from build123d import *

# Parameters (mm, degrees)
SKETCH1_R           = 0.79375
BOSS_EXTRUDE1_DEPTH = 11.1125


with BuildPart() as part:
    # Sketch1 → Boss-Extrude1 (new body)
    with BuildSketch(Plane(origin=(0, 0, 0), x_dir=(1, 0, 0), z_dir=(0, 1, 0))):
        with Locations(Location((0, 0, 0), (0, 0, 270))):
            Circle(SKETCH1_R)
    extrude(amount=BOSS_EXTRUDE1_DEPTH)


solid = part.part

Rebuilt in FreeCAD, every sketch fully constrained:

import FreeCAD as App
import Part
import Sketcher

V = App.Vector
Q = App.Units.Quantity

doc = App.newDocument("Part")
params = doc.addObject("Spreadsheet::Sheet", "Params")
for row, (alias, value) in enumerate([
    ("sketch1_diameter", "0.0625 in"),
    ("pad1_length", "0.4375 in"),
], start=1):
    params.set(f"A{row}", alias)
    params.set(f"B{row}", "=" + value)
    params.setAlias(f"B{row}", alias)

body = doc.addObject("PartDesign::Body", "Body")

sketch1 = body.newObject("Sketcher::SketchObject", "Sketch")
sketch1.AttachmentSupport = (doc.getObject("XZ_Plane"), [""])
sketch1.MapMode = "FlatFace"
sketch1.addGeometry(Part.Circle(V(0, 0, 0), V(0, 0, 1), 0.8), False)
sketch1.addConstraint(Sketcher.Constraint("Coincident", 0, 3, -1, 1))
sketch1.addConstraint(Sketcher.Constraint("Diameter", 0, Q("0.0625 in")))
sketch1.setExpression("Constraints[1]", "Params.sketch1_diameter")
pad1 = body.newObject("PartDesign::Pad", "Pad")
pad1.Profile = sketch1
pad1.setExpression("Length", "Params.pad1_length")
pad1.Reversed = True

doc.recompute()
